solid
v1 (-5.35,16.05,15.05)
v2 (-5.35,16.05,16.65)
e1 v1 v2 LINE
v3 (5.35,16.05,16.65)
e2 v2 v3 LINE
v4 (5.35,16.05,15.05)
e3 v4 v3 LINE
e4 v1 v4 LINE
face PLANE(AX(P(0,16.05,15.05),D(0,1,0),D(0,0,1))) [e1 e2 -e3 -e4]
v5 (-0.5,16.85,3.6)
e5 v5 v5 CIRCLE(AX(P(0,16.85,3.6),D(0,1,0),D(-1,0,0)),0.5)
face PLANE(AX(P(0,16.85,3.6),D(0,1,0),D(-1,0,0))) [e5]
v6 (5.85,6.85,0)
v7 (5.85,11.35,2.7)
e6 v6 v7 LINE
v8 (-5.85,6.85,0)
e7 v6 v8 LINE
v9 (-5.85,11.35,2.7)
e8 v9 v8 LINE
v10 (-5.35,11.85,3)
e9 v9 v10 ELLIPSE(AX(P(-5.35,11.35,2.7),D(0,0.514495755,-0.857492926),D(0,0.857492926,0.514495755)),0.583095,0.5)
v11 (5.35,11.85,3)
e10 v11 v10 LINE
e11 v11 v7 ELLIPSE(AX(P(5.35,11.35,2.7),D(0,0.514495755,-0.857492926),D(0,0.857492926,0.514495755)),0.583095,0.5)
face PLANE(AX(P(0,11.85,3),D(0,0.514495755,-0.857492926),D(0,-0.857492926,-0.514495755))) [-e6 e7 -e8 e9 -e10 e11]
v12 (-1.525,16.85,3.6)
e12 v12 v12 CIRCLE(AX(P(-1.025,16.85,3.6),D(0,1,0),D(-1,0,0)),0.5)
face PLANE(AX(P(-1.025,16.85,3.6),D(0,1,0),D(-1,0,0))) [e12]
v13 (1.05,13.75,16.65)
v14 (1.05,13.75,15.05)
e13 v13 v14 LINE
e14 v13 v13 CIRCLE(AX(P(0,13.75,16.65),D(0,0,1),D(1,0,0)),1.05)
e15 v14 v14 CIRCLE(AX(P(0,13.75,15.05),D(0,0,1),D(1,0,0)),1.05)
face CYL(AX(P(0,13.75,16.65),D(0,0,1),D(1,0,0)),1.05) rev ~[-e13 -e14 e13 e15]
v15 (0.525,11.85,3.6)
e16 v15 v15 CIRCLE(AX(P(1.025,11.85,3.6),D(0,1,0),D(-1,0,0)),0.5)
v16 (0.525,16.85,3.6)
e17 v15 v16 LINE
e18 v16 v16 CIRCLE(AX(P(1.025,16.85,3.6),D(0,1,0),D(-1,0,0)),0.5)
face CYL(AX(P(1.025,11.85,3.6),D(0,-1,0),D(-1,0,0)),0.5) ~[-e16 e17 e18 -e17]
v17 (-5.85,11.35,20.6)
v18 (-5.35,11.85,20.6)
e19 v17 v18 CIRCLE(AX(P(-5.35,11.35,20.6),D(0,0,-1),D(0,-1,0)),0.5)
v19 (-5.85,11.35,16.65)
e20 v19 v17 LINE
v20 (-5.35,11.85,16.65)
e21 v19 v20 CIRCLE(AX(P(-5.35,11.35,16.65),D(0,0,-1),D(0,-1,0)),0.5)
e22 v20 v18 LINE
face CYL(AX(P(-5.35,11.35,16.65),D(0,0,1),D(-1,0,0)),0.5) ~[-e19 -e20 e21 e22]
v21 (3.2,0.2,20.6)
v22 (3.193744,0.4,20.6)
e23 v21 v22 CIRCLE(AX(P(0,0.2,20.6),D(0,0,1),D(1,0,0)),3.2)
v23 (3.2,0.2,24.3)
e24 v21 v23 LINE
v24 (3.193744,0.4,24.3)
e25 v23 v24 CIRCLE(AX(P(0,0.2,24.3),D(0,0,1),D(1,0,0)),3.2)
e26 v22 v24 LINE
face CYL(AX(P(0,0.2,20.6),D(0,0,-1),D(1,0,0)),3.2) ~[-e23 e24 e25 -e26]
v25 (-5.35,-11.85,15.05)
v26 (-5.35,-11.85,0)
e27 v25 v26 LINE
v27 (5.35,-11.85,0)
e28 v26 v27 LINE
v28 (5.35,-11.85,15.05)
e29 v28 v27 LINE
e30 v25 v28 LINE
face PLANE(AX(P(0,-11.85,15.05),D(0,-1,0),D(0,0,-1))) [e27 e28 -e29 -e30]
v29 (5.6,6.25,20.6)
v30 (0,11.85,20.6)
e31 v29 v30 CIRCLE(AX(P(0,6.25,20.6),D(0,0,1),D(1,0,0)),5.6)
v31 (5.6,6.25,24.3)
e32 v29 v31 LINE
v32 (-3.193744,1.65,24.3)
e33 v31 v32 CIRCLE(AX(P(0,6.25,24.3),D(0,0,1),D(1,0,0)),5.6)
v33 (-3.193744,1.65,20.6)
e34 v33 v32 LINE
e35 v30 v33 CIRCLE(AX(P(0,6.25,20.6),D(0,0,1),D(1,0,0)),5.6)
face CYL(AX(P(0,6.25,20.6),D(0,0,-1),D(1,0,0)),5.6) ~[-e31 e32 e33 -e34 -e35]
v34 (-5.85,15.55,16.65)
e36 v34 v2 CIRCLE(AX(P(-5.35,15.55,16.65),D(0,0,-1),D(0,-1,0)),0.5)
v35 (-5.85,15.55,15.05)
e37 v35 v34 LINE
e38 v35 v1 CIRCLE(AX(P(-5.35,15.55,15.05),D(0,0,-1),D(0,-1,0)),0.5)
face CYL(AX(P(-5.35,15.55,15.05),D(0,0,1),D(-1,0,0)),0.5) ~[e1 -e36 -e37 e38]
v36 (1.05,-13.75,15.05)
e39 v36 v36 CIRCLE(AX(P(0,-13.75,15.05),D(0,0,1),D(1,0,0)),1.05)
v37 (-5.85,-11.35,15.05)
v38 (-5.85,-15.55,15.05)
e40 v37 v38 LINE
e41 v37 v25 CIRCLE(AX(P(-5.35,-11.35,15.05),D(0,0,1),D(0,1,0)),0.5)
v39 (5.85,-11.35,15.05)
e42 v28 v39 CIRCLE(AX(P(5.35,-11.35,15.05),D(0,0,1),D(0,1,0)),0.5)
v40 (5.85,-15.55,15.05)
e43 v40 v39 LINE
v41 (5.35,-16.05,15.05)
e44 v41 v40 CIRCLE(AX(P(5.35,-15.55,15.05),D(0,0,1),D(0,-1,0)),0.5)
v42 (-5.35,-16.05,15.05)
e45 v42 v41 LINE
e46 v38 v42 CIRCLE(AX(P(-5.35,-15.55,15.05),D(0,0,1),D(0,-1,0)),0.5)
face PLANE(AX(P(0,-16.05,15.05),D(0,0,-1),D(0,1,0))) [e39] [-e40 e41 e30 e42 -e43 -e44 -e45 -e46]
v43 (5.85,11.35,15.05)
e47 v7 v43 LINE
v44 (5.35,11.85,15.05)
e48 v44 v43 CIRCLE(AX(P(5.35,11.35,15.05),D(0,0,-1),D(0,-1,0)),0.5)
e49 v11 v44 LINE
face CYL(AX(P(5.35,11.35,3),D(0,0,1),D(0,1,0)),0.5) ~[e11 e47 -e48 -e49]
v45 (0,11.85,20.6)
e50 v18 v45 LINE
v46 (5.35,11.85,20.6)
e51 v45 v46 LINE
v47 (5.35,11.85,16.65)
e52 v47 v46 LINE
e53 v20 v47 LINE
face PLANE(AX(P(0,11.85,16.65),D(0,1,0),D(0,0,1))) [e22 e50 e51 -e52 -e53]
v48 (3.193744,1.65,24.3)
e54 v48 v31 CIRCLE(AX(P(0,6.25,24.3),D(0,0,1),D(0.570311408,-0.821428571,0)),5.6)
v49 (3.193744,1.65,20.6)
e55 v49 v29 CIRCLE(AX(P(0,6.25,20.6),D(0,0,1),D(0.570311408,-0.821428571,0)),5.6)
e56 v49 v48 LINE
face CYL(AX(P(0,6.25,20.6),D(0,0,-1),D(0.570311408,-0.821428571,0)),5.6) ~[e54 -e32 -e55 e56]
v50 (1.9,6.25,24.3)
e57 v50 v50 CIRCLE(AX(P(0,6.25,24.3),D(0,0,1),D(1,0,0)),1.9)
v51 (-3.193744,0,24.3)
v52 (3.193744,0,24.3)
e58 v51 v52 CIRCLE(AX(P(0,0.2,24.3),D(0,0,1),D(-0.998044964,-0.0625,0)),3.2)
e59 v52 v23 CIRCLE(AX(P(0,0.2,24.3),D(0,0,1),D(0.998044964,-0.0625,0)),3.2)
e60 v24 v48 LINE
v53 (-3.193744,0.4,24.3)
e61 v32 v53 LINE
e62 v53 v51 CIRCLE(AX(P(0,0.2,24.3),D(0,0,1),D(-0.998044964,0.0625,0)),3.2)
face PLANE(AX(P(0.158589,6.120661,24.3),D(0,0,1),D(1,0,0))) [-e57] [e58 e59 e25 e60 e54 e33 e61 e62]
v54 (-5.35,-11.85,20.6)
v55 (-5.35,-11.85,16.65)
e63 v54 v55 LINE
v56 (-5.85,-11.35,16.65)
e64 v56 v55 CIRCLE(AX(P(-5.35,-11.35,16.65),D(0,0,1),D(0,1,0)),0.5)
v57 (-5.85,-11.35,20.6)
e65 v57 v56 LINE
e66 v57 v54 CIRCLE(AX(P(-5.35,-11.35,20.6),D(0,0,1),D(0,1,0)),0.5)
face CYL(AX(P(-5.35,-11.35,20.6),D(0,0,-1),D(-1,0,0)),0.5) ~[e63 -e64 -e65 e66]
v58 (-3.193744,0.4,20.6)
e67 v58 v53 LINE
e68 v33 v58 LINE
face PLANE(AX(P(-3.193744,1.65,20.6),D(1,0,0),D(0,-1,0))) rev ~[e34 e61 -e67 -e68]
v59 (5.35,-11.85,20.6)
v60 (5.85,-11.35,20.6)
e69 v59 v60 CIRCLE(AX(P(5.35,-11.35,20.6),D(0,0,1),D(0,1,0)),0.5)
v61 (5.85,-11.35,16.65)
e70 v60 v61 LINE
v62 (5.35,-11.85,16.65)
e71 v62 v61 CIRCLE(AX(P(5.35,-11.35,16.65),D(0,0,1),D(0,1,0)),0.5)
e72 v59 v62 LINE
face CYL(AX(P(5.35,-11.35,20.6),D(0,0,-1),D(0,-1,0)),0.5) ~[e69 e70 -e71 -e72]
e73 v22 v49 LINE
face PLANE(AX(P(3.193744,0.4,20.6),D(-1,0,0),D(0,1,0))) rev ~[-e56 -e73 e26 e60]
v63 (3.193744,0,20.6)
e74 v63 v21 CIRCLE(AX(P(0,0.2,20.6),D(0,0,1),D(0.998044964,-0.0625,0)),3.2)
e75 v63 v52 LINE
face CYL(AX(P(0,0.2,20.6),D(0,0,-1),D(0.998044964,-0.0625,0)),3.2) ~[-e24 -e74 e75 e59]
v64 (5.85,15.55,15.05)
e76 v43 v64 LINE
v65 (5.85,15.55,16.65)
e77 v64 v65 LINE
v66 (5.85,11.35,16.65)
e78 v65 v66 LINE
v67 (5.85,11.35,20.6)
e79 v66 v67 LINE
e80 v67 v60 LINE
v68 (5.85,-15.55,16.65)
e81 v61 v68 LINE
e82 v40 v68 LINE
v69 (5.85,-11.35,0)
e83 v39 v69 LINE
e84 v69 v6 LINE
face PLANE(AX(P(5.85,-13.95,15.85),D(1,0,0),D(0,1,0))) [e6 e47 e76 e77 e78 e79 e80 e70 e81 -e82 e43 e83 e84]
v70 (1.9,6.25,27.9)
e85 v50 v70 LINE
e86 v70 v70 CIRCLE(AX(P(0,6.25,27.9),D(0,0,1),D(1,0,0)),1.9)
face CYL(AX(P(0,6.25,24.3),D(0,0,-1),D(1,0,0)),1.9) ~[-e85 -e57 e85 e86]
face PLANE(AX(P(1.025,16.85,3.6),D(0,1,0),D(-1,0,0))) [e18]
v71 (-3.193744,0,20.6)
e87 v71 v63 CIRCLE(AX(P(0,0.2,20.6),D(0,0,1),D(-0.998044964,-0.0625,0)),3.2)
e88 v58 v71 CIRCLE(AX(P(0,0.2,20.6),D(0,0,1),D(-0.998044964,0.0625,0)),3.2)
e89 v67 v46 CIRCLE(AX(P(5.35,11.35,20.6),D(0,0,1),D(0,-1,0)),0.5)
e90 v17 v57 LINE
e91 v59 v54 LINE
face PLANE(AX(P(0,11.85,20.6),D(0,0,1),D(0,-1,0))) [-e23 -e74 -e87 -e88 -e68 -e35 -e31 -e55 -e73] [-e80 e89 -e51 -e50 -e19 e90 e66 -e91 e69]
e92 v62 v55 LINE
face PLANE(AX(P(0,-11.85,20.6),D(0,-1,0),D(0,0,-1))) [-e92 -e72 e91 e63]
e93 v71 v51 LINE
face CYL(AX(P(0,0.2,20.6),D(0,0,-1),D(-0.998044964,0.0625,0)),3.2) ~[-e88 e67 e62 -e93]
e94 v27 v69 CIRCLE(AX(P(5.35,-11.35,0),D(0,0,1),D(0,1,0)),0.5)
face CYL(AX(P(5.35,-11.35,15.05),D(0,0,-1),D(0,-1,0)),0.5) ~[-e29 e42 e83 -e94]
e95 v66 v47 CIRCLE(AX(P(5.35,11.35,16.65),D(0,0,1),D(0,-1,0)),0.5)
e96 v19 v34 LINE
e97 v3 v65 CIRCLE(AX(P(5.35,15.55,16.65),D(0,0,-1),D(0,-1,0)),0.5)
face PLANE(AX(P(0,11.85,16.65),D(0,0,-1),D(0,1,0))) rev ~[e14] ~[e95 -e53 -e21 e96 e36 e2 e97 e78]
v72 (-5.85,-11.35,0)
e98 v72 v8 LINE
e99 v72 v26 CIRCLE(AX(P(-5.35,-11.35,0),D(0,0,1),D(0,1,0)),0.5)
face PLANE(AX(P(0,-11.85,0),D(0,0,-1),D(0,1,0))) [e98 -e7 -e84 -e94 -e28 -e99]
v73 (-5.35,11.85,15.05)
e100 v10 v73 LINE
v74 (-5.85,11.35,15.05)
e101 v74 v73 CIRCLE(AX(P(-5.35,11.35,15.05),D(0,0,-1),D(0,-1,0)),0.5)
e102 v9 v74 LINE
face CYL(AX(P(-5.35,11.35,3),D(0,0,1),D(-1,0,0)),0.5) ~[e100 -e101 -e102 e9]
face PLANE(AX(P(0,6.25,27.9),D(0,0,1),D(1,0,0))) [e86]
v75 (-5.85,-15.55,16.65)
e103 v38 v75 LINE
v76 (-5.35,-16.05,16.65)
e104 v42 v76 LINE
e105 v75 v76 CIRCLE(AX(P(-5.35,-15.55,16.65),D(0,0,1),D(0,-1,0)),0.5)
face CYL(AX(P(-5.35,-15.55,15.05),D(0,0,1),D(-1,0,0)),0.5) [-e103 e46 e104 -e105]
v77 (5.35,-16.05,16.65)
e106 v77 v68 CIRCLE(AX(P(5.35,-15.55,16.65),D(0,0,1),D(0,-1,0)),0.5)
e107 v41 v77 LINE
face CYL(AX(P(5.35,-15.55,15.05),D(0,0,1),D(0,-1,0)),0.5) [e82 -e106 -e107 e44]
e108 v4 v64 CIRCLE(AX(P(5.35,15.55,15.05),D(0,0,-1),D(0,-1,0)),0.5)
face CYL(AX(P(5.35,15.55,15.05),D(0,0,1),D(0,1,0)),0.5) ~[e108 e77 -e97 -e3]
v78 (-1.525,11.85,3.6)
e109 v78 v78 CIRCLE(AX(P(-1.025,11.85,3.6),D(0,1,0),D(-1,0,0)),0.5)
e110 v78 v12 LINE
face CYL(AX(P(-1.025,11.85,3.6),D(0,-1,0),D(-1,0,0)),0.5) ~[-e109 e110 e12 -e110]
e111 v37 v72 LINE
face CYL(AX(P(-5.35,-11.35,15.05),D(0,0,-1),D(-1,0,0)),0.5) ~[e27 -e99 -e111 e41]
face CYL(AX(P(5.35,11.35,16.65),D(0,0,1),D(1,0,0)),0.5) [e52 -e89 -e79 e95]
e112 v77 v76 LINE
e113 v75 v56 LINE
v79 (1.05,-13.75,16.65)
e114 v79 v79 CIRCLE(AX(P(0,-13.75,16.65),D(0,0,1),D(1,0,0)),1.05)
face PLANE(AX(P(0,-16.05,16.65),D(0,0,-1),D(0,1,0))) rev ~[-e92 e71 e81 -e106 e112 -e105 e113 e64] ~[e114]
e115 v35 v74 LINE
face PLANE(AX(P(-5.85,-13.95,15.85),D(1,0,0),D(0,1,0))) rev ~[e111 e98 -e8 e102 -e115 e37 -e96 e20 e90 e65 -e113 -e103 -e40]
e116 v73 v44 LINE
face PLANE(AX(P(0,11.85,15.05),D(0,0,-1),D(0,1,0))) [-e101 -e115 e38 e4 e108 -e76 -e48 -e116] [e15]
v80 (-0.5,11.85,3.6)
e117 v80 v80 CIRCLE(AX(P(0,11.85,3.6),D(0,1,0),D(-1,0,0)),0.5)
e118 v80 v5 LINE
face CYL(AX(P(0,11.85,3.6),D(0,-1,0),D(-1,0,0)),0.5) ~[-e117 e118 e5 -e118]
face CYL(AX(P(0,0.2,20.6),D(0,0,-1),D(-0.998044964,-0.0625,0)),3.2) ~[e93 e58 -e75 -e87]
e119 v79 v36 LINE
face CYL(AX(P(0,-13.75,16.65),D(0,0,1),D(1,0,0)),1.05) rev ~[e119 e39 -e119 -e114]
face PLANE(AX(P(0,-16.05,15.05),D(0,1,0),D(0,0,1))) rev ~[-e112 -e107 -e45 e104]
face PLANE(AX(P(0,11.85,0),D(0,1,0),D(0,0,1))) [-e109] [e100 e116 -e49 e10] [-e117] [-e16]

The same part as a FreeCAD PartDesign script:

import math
import FreeCAD as App
import Part
import Sketcher
from FreeCAD import Vector
Q = App.Units.Quantity


def edges_at(feature, points):
    """Names of the edges that pass closest to the given points."""
    edges = feature.Shape.Edges
    near = lambda p: min(range(len(edges)), key=lambda i: edges[i].distToShape(Part.Vertex(*p))[0])
    return sorted({f"Edge{near(p) + 1}" for p in points})

doc = App.newDocument("Part")
body = doc.addObject("PartDesign::Body", "Body")

sketch1 = doc.addObject("Sketcher::SketchObject", "Sketch")
body.addObject(sketch1)
sketch1.AttachmentSupport = (doc.YZ_Plane, [""])
sketch1.MapMode = "FlatFace"
sketch1.addGeometry([
    Part.LineSegment(Vector(-16.05, 16.65, 0), Vector(-16.05, 15.05, 0)),
    Part.LineSegment(Vector(-16.05, 15.05, 0), Vector(-11.85, 15.05, 0)),
    Part.LineSegment(Vector(-11.85, 15.05, 0), Vector(-11.85, 0, 0)),
    Part.LineSegment(Vector(-11.85, 0, 0), Vector(11.85, 0, 0)),
    Part.LineSegment(Vector(11.85, 0, 0), Vector(11.85, 15.05, 0)),
    Part.LineSegment(Vector(11.85, 15.05, 0), Vector(16.05, 15.05, 0)),
    Part.LineSegment(Vector(16.05, 15.05, 0), Vector(16.05, 16.65, 0)),
    Part.LineSegment(Vector(16.05, 16.65, 0), Vector(11.85, 16.65, 0)),
    Part.LineSegment(Vector(11.85, 16.65, 0), Vector(11.85, 20.6, 0)),
    Part.LineSegment(Vector(11.85, 20.6, 0), Vector(-11.85, 20.6, 0)),
    Part.LineSegment(Vector(-11.85, 20.6, 0), Vector(-11.85, 16.65, 0)),
    Part.LineSegment(Vector(-11.85, 16.65, 0), Vector(-16.05, 16.65, 0)),
], False)
sketch1.addConstraint([
    Sketcher.Constraint("Coincident", 0, 2, 1, 1),
    Sketcher.Constraint("Coincident", 1, 2, 2, 1),
    Sketcher.Constraint("Coincident", 2, 2, 3, 1),
    Sketcher.Constraint("Coincident", 3, 2, 4, 1),
    Sketcher.Constraint("Coincident", 4, 2, 5, 1),
    Sketcher.Constraint("Coincident", 5, 2, 6, 1),
    Sketcher.Constraint("Coincident", 6, 2, 7, 1),
    Sketcher.Constraint("Coincident", 7, 2, 8, 1),
    Sketcher.Constraint("Coincident", 8, 2, 9, 1),
    Sketcher.Constraint("Coincident", 9, 2, 10, 1),
    Sketcher.Constraint("Coincident", 10, 2, 11, 1),
    Sketcher.Constraint("Coincident", 11, 2, 0, 1),
    Sketcher.Constraint("Vertical", 0),
    Sketcher.Constraint("Horizontal", 1),
    Sketcher.Constraint("Vertical", 2),
    Sketcher.Constraint("Horizontal", 3),
    Sketcher.Constraint("Vertical", 4),
    Sketcher.Constraint("Horizontal", 5),
    Sketcher.Constraint("Vertical", 6),
    Sketcher.Constraint("Horizontal", 7),
    Sketcher.Constraint("Vertical", 8),
    Sketcher.Constraint("Horizontal", 9),
    Sketcher.Constraint("Vertical", 10),
    Sketcher.Constraint("Horizontal", 11),
    Sketcher.Constraint("Symmetric", 2, 2, 3, 2, -1, 1),
    Sketcher.Constraint("Symmetric", 0, 2, 5, 2, -2),
    Sketcher.Constraint("Symmetric", 7, 2, 10, 2, -2),
    Sketcher.Constraint("Vertical", 4, 2, 7, 2),
    Sketcher.Constraint("DistanceX", 1, 1, 1, 2, Q("4.2 mm")),
    Sketcher.Constraint("DistanceX", 3, 1, 3, 2, Q("23.7 mm")),
    Sketcher.Constraint("DistanceY", 0, 2, 0, 1, Q("1.6 mm")),
    Sketcher.Constraint("DistanceY", 2, 2, 2, 1, Q("15.05 mm")),
    Sketcher.Constraint("DistanceY", 8, 1, 8, 2, Q("3.95 mm")),
])
pad1 = doc.addObject("PartDesign::Pad", "Pad")
body.addObject(pad1)
pad1.Profile = sketch1
pad1.Type = "TwoLengths"
pad1.Length = 5.85
pad1.Length2 = 5.85

sketch2 = doc.addObject("Sketcher::SketchObject", "Sketch001")
body.addObject(sketch2)
sketch2.AttachmentSupport = (doc.XY_Plane, [""])
sketch2.MapMode = "FlatFace"
sketch2.AttachmentOffset = App.Placement(Vector(0, 0, 20.6), App.Rotation())
sketch2.addGeometry([
    Part.ArcOfCircle(Part.Circle(Vector(0, 6.25, 0), Vector(0, 0, 1), 5.6), math.radians(-55.228056), math.radians(0)),
    Part.ArcOfCircle(Part.Circle(Vector(0, 6.25, 0), Vector(0, 0, 1), 5.6), math.radians(0), math.radians(235.228056)),
    Part.LineSegment(Vector(-3.193744, 1.65, 0), Vector(-3.193744, 0.4, 0)),
    Part.ArcOfCircle(Part.Circle(Vector(0, 0.2, 0), Vector(0, 0, 1), 3.2), math.radians(176.416678), math.radians(183.583322)),
    Part.ArcOfCircle(Part.Circle(Vector(0, 0.2, 0), Vector(0, 0, 1), 3.2), math.radians(-176.416678), math.radians(-3.583322)),
    Part.ArcOfCircle(Part.Circle(Vector(0, 0.2, 0), Vector(0, 0, 1), 3.2), math.radians(-3.583322), math.radians(0)),
    Part.ArcOfCircle(Part.Circle(Vector(0, 0.2, 0), Vector(0, 0, 1), 3.2), math.radians(0), math.radians(3.583322)),
    Part.LineSegment(Vector(3.193744, 0.4, 0), Vector(3.193744, 1.65, 0)),
], False)
sketch2.addConstraint([
    Sketcher.Constraint("Tangent", 0, 2, 1, 1),
    Sketcher.Constraint("Coincident", 1, 2, 2, 1),
    Sketcher.Constraint("Coincident", 2, 2, 3, 1),
    Sketcher.Constraint("Tangent", 3, 2, 4, 1),
    Sketcher.Constraint("Tangent", 4, 2, 5, 1),
    Sketcher.Constraint("Tangent", 5, 2, 6, 1),
    Sketcher.Constraint("Coincident", 6, 2, 7, 1),
    Sketcher.Constraint("Coincident", 7, 2, 0, 1),
    Sketcher.Constraint("Vertical", 2),
    Sketcher.Constraint("Vertical", 7),
    Sketcher.Constraint("Coincident", 5, 3, 3, 3),
    Sketcher.Constraint("Equal", 0, 1),
    Sketcher.Constraint("Equal", 5, 6),
    Sketcher.Constraint("Symmetric", 3, 2, 4, 2, -1, 1),
    Sketcher.Constraint("Symmetric", 2, 2, 6, 2, -2),
    Sketcher.Constraint("PointOnObject", 0, 3, -2),
    Sketcher.Constraint("Horizontal", 1, 3, 0, 2),
    Sketcher.Constraint("Horizontal", 6, 3, 5, 2),
    Sketcher.Constraint("Vertical", 2, 2, 3, 2),
    Sketcher.Constraint("Radius", 0, Q("5.6 mm")),
    Sketcher.Constraint("Radius", 3, Q("3.2 mm")),
    Sketcher.Constraint("DistanceY", 2, 2, 2, 1, Q("1.25 mm")),
    Sketcher.Constraint("DistanceY", -1, 1, 3, 3, Q("0.2 mm")),
])
pad2 = doc.addObject("PartDesign::Pad", "Pad001")
body.addObject(pad2)
pad2.Profile = sketch2
pad2.Length = 3.7

sketch3 = doc.addObject("Sketcher::SketchObject", "Sketch002")
body.addObject(sketch3)
sketch3.AttachmentSupport = (doc.XY_Plane, [""])
sketch3.MapMode = "FlatFace"
sketch3.AttachmentOffset = App.Placement(Vector(0, 0, 24.3), App.Rotation())
sketch3.addGeometry(Part.Circle(Vector(0, 6.25, 0), Vector(0, 0, 1), 1.9), False)
sketch3.addConstraint([
    Sketcher.Constraint("PointOnObject", 0, 3, -2),
    Sketcher.Constraint("Diameter", 0, Q("3.8 mm")),
    Sketcher.Constraint("DistanceY", -1, 1, 0, 3, Q("6.25 mm")),
])
pad3 = doc.addObject("PartDesign::Pad", "Pad002")
body.addObject(pad3)
pad3.Profile = sketch3
pad3.Length = 3.6

sketch4 = doc.addObject("Sketcher::SketchObject", "Sketch003")
body.addObject(sketch4)
sketch4.AttachmentSupport = (doc.XY_Plane, [""])
sketch4.MapMode = "FlatFace"
sketch4.AttachmentOffset = App.Placement(Vector(0, 0, 16.65), App.Rotation())
sketch4.addGeometry([
    Part.Circle(Vector(0, 13.75, 0), Vector(0, 0, 1), 1.05),
    Part.Circle(Vector(0, -13.75, 0), Vector(0, 0, 1), 1.05),
], False)
sketch4.addConstraint([
    Sketcher.Constraint("Equal", 0, 1),
    Sketcher.Constraint("Symmetric", 0, 3, 1, 3, -1, 1),
    Sketcher.Constraint("PointOnObject", 0, 3, -2),
    Sketcher.Constraint("Diameter", 0, Q("2.1 mm")),
    Sketcher.Constraint("DistanceY", 1, 3, 0, 3, Q("27.5 mm")),
])
pocket1 = doc.addObject("PartDesign::Pocket", "Pocket")
body.addObject(pocket1)
pocket1.Profile = sketch4
pocket1.Length = 10

sketch5 = doc.addObject("Sketcher::SketchObject", "Sketch004")
body.addObject(sketch5)
sketch5.AttachmentSupport = (doc.YZ_Plane, [""])
sketch5.MapMode = "FlatFace"
sketch5.addGeometry([
    Part.LineSegment(Vector(11.85, 3, 0), Vector(6.85, 0, 0)),
    Part.LineSegment(Vector(6.85, 0, 0), Vector(11.85, 0, 0)),
    Part.LineSegment(Vector(11.85, 0, 0), Vector(11.85, 3, 0)),
], False)
sketch5.addConstraint([
    Sketcher.Constraint("Coincident", 0, 2, 1, 1),
    Sketcher.Constraint("Coincident", 1, 2, 2, 1),
    Sketcher.Constraint("Coincident", 2, 2, 0, 1),
    Sketcher.Constraint("Horizontal", 1),
    Sketcher.Constraint("Vertical", 2),
    Sketcher.Constraint("PointOnObject", 0, 2, -1),
    Sketcher.Constraint("DistanceX", 1, 1, 1, 2, Q("5 mm")),
    Sketcher.Constraint("DistanceY", 2, 1, 2, 2, Q("3 mm")),
    Sketcher.Constraint("DistanceX", -1, 1, 0, 2, Q("6.85 mm")),
])
pocket2 = doc.addObject("PartDesign::Pocket", "Pocket001")
body.addObject(pocket2)
pocket2.Profile = sketch5
pocket2.Type = "ThroughAll"
pocket2.Midplane = True
doc.recompute()

fillet = doc.addObject("PartDesign::Fillet", "Fillet")
body.addObject(fillet)
fillet.Base = (pocket2, edges_at(pocket2, [
    (5.85, -11.85, 18.625),
    (-5.85, -11.85, 18.625),
    (-5.85, -11.85, 7.525),
    (5.85, -11.85, 7.525),
    (5.85, 11.85, 18.625),
    (-5.85, 11.85, 18.625),
    (-5.85, 11.85, 9.025),
    (5.85, 11.85, 9.025),
    (5.85, 16.05, 15.85),
    (-5.85, 16.05, 15.85),
    (5.85, -16.05, 15.85),
    (-5.85, -16.05, 15.85),
]))
fillet.Radius = 0.5

sketch6 = doc.addObject("Sketcher::SketchObject", "Sketch005")
body.addObject(sketch6)
sketch6.AttachmentSupport = (doc.XZ_Plane, [""])
sketch6.MapMode = "FlatFace"
sketch6.AttachmentOffset = App.Placement(Vector(0, 0, -11.85), App.Rotation())
sketch6.addGeometry([
    Part.Circle(Vector(0, 3.6, 0), Vector(0, 0, 1), 0.5),
    Part.Circle(Vector(-1.025, 3.6, 0), Vector(0, 0, 1), 0.5),
    Part.Circle(Vector(1.025, 3.6, 0), Vector(0, 0, 1), 0.5),
], False)
sketch6.addConstraint([
    Sketcher.Constraint("Equal", 0, 1),
    Sketcher.Constraint("Equal", 1, 2),
    Sketcher.Constraint("Symmetric", 1, 3, 2, 3, -2),
    Sketcher.Constraint("PointOnObject", 0, 3, -2),
    Sketcher.Constraint("Horizontal", 0, 3, 1, 3),
    Sketcher.Constraint("Diameter", 0, Q("1 mm")),
    Sketcher.Constraint("DistanceY", -1, 1, 0, 3, Q("3.6 mm")),
    Sketcher.Constraint("DistanceX", 1, 3, 2, 3, Q("2.05 mm")),
])
pad4 = doc.addObject("PartDesign::Pad", "Pad003")
body.addObject(pad4)
pad4.Profile = sketch6
pad4.Length = 5
pad4.Reversed = True

doc.recompute()
